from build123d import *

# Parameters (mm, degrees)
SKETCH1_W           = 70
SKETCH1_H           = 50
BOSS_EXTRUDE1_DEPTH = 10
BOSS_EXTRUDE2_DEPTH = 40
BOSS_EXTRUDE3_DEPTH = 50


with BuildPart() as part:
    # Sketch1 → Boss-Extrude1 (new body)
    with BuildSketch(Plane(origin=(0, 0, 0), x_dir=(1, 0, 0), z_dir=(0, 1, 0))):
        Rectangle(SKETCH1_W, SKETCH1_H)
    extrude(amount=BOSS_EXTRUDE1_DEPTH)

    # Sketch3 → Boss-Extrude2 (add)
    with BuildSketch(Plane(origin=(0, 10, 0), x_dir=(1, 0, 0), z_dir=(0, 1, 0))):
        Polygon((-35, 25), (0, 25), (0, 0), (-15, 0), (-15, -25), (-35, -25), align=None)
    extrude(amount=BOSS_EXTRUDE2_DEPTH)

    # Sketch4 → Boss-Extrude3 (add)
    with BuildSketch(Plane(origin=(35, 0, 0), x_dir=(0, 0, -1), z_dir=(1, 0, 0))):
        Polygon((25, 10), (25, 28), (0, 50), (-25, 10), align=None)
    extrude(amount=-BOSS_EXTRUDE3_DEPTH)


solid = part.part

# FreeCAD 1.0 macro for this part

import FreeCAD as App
import Part
import Sketcher

V = App.Vector


def add_polygon(sketch, points):
    """Adds a closed chain of lines whose ends are joined by coincident constraints."""
    first, n = sketch.GeometryCount, len(points)
    for a, b in zip(points, points[1:] + points[:1]):
        sketch.addGeometry(Part.LineSegment(App.Vector(*a, 0), App.Vector(*b, 0)), False)
    for i in range(n):
        sketch.addConstraint(Sketcher.Constraint("Coincident", first + i, 2, first + (i + 1) % n, 1))

doc = App.newDocument("Part")
body = doc.addObject("PartDesign::Body", "Body")

# Sketch on XZ plane
sketch1 = body.newObject("Sketcher::SketchObject", "Sketch")
sketch1.AttachmentSupport = (doc.getObject("XZ_Plane"), [""])
sketch1.MapMode = "FlatFace"
add_polygon(sketch1, [(-35, -25), (-35, 25), (35, 25), (35, -25)])  # lines 0-3
sketch1.addConstraint([
    Sketcher.Constraint("Vertical", 0),
    Sketcher.Constraint("Horizontal", 1),
    Sketcher.Constraint("Vertical", 2),
    Sketcher.Constraint("Horizontal", 3),
    Sketcher.Constraint("Symmetric", 0, 2, 2, 2, -1, 1),
    Sketcher.Constraint("DistanceX", 1, 1, 1, 2, 70.0),
    Sketcher.Constraint("DistanceY", 0, 1, 0, 2, 50.0),
])
pad1 = body.newObject("PartDesign::Pad", "Pad")
pad1.Profile = sketch1
pad1.Length = 10
pad1.Reversed = True

# Sketch on XZ plane
sketch2 = body.newObject("Sketcher::SketchObject", "Sketch001")
sketch2.AttachmentSupport = (doc.getObject("XZ_Plane"), [""])
sketch2.MapMode = "FlatFace"
sketch2.AttachmentOffset = App.Placement(V(0, 0, -10), App.Rotation())
add_polygon(sketch2, [(0, -25), (-35, -25), (-35, 25), (-15, 25), (-15, 0), (0, 0)])  # lines 0-5
sketch2.addConstraint([
    Sketcher.Constraint("Horizontal", 0),
    Sketcher.Constraint("Vertical", 1),
    Sketcher.Constraint("Horizontal", 2),
    Sketcher.Constraint("Vertical", 3),
    Sketcher.Constraint("Horizontal", 4),
    Sketcher.Constraint("Vertical", 5),
    Sketcher.Constraint("Coincident", 4, 2, -1, 1),
    Sketcher.Constraint("Equal", 3, 5),
    Sketcher.Constraint("DistanceX", 0, 2, 0, 1, 35.0),
    Sketcher.Constraint("DistanceX", 2, 1, 2, 2, 20.0),
    Sketcher.Constraint("DistanceY", 1, 1, 1, 2, 50.0),
])
pad2 = body.newObject("PartDesign::Pad", "Pad001")
pad2.Profile = sketch2
pad2.Length = 40
pad2.Reversed = True

# Sketch on YZ plane
sketch3 = body.newObject("Sketcher::SketchObject", "Sketch002")
sketch3.AttachmentSupport = (doc.getObject("YZ_Plane"), [""])
sketch3.MapMode = "FlatFace"
sketch3.AttachmentOffset = App.Placement(V(0, 0, 35), App.Rotation())
add_polygon(sketch3, [(10, -25), (28, -25), (50, 0), (10, 25)])  # lines 0-3
sketch3.addConstraint([
    Sketcher.Constraint("Horizontal", 0),
    Sketcher.Constraint("Vertical", 3),
    Sketcher.Constraint("PointOnObject", 1, 2, -1),
    Sketcher.Constraint("DistanceX", 0, 1, 0, 2, 18.0),
    Sketcher.Constraint("DistanceY", 3, 2, 3, 1, 50.0),
    Sketcher.Constraint("DistanceX", -1, 1, 0, 2, 28.0),
    Sketcher.Constraint("DistanceY", 0, 2, -1, 1, 25.0),
    Sketcher.Constraint("DistanceX", -1, 1, 1, 2, 50.0),
])
pad3 = body.newObject("PartDesign::Pad", "Pad002")
pad3.Profile = sketch3
pad3.Length = 50
pad3.Reversed = True

doc.recompute()
